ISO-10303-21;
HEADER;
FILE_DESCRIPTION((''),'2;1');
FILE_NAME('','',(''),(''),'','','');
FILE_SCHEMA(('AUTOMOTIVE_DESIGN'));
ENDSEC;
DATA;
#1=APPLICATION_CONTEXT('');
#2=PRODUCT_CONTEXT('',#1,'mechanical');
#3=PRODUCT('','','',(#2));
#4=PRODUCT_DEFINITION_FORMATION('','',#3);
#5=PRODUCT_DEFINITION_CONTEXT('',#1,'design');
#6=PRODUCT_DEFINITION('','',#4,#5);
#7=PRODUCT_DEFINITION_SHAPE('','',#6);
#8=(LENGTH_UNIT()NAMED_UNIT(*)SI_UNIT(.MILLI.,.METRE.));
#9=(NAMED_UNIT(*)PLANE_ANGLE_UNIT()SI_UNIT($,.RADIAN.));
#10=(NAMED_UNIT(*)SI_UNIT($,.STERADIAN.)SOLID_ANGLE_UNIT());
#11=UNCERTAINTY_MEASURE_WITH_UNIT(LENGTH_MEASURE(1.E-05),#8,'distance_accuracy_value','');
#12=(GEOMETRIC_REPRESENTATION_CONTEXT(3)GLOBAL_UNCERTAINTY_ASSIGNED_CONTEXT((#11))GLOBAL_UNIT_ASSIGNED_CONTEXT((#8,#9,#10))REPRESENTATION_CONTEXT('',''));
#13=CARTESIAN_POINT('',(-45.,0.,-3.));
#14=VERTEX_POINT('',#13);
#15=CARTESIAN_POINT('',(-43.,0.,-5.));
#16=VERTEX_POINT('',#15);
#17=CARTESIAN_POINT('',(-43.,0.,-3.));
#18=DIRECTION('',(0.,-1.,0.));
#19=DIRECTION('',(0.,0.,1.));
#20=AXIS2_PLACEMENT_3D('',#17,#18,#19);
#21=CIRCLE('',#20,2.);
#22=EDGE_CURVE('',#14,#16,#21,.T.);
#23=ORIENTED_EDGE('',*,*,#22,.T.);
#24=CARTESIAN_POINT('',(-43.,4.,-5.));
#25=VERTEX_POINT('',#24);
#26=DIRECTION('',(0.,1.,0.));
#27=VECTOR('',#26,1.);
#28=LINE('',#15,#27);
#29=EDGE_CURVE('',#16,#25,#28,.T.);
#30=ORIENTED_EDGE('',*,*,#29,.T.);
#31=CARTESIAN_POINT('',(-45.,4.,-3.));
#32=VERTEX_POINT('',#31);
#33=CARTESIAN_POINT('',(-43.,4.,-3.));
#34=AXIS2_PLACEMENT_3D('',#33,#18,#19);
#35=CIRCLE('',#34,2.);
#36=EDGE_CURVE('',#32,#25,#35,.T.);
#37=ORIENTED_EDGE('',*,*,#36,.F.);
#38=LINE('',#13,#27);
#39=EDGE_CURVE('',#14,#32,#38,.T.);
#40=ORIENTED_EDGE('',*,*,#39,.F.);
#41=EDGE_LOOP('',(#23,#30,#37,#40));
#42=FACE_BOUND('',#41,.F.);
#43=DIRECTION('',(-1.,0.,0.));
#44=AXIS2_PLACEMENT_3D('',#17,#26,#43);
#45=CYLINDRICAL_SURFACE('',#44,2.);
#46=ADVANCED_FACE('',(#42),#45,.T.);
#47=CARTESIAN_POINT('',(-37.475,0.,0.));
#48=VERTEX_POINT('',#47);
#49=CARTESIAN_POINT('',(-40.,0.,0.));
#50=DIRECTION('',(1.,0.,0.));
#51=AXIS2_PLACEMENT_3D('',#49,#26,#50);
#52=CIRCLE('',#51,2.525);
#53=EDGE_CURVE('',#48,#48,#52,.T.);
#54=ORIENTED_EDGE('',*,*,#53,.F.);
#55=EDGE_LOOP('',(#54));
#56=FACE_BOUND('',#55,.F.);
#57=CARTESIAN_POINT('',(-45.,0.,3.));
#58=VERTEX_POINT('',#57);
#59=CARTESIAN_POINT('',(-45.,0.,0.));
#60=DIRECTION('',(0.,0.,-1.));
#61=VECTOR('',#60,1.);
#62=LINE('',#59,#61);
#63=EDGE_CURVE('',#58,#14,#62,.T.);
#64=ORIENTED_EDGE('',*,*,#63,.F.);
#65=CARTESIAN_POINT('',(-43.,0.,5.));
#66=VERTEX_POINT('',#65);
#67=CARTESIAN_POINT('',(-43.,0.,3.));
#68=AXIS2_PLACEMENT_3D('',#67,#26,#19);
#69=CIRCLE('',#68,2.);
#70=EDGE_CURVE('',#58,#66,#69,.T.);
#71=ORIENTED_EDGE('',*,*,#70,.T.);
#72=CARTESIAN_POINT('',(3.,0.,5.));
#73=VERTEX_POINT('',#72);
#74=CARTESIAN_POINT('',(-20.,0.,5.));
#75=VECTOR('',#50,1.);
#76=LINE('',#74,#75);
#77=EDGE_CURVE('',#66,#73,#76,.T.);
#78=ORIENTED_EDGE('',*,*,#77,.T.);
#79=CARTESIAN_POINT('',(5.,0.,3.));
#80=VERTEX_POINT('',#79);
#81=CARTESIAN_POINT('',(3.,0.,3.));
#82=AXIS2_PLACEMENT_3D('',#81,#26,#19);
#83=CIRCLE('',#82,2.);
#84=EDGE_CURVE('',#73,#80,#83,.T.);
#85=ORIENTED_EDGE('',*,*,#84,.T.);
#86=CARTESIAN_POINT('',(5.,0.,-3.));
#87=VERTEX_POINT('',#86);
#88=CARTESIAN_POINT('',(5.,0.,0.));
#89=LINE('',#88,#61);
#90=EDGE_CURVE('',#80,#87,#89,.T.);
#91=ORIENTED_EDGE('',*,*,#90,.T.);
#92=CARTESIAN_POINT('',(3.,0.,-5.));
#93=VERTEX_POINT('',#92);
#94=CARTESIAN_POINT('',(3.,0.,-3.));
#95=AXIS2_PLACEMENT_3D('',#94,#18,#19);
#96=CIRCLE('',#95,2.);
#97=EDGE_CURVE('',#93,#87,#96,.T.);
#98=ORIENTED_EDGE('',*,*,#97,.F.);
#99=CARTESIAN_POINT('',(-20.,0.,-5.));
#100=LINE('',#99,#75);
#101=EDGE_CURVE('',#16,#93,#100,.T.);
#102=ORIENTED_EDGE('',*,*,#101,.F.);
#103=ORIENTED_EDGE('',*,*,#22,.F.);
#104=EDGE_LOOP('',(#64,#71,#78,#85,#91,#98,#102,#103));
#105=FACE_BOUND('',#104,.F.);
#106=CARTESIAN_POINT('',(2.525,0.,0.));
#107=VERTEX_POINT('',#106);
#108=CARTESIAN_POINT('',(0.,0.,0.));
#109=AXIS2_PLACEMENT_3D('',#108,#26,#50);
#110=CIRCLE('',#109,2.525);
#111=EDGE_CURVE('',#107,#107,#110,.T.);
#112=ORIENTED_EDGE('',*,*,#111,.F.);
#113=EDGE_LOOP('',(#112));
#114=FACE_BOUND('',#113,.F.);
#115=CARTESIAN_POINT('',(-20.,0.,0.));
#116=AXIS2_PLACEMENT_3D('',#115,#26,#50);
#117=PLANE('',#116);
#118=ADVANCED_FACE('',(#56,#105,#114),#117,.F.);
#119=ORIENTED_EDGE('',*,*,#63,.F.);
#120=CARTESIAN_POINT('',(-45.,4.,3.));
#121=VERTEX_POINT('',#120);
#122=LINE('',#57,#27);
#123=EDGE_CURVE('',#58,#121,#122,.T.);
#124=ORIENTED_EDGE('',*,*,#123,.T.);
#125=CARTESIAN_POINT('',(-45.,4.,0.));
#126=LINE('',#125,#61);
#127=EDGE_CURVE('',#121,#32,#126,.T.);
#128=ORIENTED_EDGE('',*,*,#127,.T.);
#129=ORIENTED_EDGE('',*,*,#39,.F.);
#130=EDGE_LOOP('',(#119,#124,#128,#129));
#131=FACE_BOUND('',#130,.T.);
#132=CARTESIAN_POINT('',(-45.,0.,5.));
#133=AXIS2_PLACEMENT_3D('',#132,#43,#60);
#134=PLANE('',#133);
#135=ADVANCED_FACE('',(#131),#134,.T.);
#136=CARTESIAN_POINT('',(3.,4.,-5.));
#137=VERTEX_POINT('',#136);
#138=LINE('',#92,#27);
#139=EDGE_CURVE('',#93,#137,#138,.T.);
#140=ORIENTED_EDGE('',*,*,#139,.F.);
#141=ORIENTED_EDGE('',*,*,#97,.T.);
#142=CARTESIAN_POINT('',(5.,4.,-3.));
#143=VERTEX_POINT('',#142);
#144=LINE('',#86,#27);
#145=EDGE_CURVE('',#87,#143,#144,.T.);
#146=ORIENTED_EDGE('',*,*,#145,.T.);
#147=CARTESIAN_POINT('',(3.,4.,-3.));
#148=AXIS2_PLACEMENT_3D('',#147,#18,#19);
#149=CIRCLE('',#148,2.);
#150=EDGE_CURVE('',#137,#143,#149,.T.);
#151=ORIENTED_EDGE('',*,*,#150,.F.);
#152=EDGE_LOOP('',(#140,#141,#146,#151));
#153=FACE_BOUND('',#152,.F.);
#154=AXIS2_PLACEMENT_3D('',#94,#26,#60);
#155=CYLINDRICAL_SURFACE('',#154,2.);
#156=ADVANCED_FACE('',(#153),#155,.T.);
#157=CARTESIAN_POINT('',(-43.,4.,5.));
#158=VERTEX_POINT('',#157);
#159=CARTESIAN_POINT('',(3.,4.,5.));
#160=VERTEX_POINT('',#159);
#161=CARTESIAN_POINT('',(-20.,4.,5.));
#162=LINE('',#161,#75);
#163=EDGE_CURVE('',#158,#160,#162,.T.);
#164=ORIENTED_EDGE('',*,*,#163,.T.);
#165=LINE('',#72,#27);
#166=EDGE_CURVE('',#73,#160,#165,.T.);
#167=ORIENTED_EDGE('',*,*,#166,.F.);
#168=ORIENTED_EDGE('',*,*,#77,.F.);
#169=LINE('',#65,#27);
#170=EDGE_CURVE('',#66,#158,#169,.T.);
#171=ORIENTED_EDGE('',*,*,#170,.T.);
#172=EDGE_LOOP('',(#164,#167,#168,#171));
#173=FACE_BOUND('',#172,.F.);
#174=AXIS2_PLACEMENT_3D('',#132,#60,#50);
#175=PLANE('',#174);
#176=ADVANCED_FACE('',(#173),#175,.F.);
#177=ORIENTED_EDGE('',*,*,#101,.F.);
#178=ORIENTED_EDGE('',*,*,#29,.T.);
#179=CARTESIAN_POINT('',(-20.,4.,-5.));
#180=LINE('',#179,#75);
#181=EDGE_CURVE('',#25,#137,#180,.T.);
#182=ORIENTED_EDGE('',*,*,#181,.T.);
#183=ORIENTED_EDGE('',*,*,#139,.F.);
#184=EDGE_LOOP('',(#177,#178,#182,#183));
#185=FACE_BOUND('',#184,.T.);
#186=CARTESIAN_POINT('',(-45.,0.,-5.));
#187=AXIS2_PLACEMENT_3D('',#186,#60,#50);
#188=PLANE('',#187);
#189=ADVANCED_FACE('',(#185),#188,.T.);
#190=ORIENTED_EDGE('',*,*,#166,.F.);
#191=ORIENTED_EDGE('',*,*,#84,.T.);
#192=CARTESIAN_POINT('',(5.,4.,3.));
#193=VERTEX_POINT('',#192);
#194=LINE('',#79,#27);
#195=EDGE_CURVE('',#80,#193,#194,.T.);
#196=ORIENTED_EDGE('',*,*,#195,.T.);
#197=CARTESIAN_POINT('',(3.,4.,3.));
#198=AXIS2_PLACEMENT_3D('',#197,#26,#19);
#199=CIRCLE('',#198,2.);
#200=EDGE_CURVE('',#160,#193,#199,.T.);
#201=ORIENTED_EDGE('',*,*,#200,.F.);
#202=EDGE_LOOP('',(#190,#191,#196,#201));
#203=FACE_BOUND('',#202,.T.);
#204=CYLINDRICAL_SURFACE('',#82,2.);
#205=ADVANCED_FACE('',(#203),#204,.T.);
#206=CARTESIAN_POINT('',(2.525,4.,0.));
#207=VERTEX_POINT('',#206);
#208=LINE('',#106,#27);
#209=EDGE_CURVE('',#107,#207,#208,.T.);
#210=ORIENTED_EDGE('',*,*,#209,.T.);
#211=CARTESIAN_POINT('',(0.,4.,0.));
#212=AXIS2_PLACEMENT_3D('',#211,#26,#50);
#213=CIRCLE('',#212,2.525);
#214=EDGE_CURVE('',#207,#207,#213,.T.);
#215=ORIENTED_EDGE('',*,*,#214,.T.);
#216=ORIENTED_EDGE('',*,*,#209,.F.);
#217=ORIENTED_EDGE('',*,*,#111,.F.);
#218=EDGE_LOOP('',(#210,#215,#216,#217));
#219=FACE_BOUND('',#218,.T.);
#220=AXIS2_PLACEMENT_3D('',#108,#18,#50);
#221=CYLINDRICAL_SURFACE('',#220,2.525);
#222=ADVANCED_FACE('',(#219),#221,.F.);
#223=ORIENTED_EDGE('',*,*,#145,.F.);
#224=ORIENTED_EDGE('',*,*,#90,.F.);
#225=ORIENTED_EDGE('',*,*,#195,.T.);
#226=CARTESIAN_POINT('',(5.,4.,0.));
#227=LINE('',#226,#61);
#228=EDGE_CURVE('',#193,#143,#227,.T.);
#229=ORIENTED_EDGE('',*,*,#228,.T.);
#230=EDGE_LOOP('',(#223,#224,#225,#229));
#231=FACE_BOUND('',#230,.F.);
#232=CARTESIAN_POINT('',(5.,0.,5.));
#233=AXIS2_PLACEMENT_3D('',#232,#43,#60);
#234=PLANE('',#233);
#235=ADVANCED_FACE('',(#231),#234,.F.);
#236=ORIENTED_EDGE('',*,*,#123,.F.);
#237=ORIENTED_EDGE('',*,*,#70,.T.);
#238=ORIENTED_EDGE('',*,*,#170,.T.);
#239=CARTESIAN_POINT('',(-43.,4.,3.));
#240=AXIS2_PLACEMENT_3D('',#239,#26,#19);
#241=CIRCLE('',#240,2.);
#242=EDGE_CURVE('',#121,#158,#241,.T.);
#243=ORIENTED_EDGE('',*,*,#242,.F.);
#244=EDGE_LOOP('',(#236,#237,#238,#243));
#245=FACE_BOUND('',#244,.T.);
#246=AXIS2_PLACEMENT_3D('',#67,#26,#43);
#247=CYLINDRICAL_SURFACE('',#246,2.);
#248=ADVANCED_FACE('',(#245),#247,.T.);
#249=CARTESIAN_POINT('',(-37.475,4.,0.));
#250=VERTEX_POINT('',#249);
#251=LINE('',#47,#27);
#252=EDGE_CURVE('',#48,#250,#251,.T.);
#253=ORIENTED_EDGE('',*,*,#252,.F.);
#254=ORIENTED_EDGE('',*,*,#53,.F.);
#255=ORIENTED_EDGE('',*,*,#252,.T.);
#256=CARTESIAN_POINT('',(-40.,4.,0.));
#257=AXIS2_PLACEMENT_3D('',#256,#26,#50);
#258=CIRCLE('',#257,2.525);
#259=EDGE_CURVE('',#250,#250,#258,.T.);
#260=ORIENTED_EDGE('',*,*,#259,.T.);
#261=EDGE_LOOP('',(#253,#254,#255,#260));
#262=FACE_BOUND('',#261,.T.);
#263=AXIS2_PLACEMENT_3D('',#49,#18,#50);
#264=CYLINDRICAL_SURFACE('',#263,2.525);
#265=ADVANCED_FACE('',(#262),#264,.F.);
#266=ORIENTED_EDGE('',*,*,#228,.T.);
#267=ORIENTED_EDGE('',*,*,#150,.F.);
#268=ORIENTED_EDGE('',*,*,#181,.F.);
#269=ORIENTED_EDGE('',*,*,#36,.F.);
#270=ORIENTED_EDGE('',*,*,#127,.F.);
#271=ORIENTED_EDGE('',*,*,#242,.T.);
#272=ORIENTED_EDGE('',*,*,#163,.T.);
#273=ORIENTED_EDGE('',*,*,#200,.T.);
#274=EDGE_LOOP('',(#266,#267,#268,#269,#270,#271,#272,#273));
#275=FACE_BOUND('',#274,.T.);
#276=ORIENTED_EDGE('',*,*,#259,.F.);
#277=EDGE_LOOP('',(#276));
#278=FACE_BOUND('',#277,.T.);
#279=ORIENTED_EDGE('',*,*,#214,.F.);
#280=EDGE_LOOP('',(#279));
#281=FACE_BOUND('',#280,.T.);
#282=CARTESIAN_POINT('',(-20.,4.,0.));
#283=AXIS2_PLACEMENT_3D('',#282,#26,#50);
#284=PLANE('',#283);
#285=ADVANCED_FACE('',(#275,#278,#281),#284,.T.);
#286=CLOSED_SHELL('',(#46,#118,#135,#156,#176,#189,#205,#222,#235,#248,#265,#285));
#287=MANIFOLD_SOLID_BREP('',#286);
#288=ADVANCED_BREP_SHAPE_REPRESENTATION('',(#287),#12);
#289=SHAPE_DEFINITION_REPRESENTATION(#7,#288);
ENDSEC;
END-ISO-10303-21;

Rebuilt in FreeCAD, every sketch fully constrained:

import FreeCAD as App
import Part
import Sketcher
Q = App.Units.Quantity


def edges_at(feature, points):
    """Names of the edges that pass closest to the given points."""
    edges = feature.Shape.Edges
    near = lambda p: min(range(len(edges)), key=lambda i: edges[i].distToShape(Part.Vertex(*p))[0])
    return sorted({f"Edge{near(p) + 1}" for p in points})

doc = App.newDocument("Part")
body = doc.addObject("PartDesign::Body", "Body")

sketch1 = doc.addObject("Sketcher::SketchObject", "Sketch")
body.addObject(sketch1)
sketch1.AttachmentSupport = (doc.XZ_Plane, [""])
sketch1.MapMode = "FlatFace"
sketch1.addGeometry([
    Part.LineSegment(App.Vector(-45, -5, 0), App.Vector(-45, 5, 0)),
    Part.LineSegment(App.Vector(-45, 5, 0), App.Vector(5, 5, 0)),
    Part.LineSegment(App.Vector(5, 5, 0), App.Vector(5, -5, 0)),
    Part.LineSegment(App.Vector(5, -5, 0), App.Vector(-45, -5, 0)),
    Part.Circle(App.Vector(-40, 0, 0), App.Vector(0, 0, 1), 2.5),
    Part.Circle(App.Vector(0, 0, 0), App.Vector(0, 0, 1), 2.5),
], False)
sketch1.addConstraint([
    Sketcher.Constraint("Coincident", 0, 2, 1, 1),
    Sketcher.Constraint("Coincident", 1, 2, 2, 1),
    Sketcher.Constraint("Coincident", 2, 2, 3, 1),
    Sketcher.Constraint("Coincident", 3, 2, 0, 1),
    Sketcher.Constraint("Vertical", 0),
    Sketcher.Constraint("Horizontal", 1),
    Sketcher.Constraint("Vertical", 2),
    Sketcher.Constraint("Horizontal", 3),
    Sketcher.Constraint("Coincident", 5, 3, -1, 1),
    Sketcher.Constraint("Equal", 4, 5),
    Sketcher.Constraint("PointOnObject", 4, 3, -1),
    Sketcher.Constraint("Diameter", 4, Q("5.05 mm")),
    Sketcher.Constraint("DistanceX", 1, 1, 1, 2, Q("50 mm")),
    Sketcher.Constraint("DistanceY", 0, 1, 0, 2, Q("10 mm")),
    Sketcher.Constraint("DistanceX", 4, 3, -1, 1, Q("40 mm")),
    Sketcher.Constraint("DistanceX", 0, 2, -1, 1, Q("45 mm")),
    Sketcher.Constraint("DistanceY", -1, 1, 0, 2, Q("5 mm")),
])
pad1 = doc.addObject("PartDesign::Pad", "Pad")
body.addObject(pad1)
pad1.Profile = sketch1
pad1.Length = 4
pad1.Reversed = True
doc.recompute()

fillet = doc.addObject("PartDesign::Fillet", "Fillet")
body.addObject(fillet)
fillet.Base = (pad1, edges_at(pad1, [
    (-45, 2, -5),
    (5, 2, -5),
    (5, 2, 5),
    (-45, 2, 5),
]))
fillet.Radius = 2

doc.recompute()
